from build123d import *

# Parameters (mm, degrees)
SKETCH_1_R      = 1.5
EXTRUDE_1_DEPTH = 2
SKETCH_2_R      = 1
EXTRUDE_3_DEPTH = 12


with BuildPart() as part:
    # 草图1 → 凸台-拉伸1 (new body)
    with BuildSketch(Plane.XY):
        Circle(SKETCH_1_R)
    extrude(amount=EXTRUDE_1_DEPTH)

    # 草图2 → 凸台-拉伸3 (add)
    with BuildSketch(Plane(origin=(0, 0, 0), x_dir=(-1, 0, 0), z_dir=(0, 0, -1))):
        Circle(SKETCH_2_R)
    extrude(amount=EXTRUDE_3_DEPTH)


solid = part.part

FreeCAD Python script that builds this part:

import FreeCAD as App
import Part
import Sketcher

doc = App.newDocument("Part")
body = doc.addObject("PartDesign::Body", "Body")

sketch1 = body.newObject("Sketcher::SketchObject", "Sketch")
sketch1.AttachmentSupport = (doc.getObject("XY_Plane"), [""])
sketch1.MapMode = "FlatFace"
sketch1.addGeometry(Part.Circle(App.Vector(0, 0, 0), App.Vector(0, 0, 1), 1.5), False)
sketch1.addConstraint(Sketcher.Constraint("Coincident", 0, 3, -1, 1))
sketch1.addConstraint(Sketcher.Constraint("Diameter", 0, 3.0))
pad1 = body.newObject("PartDesign::Pad", "Pad")
pad1.Profile = sketch1
pad1.Length = 2

sketch2 = body.newObject("Sketcher::SketchObject", "Sketch001")
sketch2.AttachmentSupport = (doc.getObject("XY_Plane"), [""])
sketch2.MapMode = "FlatFace"
sketch2.addGeometry(Part.Circle(App.Vector(0, 0, 0), App.Vector(0, 0, 1), 1), False)
sketch2.addConstraint(Sketcher.Constraint("Coincident", 0, 3, -1, 1))
sketch2.addConstraint(Sketcher.Constraint("Diameter", 0, 2.0))
pad2 = body.newObject("PartDesign::Pad", "Pad001")
pad2.Profile = sketch2
pad2.Length = 12
pad2.Reversed = True

doc.recompute()
